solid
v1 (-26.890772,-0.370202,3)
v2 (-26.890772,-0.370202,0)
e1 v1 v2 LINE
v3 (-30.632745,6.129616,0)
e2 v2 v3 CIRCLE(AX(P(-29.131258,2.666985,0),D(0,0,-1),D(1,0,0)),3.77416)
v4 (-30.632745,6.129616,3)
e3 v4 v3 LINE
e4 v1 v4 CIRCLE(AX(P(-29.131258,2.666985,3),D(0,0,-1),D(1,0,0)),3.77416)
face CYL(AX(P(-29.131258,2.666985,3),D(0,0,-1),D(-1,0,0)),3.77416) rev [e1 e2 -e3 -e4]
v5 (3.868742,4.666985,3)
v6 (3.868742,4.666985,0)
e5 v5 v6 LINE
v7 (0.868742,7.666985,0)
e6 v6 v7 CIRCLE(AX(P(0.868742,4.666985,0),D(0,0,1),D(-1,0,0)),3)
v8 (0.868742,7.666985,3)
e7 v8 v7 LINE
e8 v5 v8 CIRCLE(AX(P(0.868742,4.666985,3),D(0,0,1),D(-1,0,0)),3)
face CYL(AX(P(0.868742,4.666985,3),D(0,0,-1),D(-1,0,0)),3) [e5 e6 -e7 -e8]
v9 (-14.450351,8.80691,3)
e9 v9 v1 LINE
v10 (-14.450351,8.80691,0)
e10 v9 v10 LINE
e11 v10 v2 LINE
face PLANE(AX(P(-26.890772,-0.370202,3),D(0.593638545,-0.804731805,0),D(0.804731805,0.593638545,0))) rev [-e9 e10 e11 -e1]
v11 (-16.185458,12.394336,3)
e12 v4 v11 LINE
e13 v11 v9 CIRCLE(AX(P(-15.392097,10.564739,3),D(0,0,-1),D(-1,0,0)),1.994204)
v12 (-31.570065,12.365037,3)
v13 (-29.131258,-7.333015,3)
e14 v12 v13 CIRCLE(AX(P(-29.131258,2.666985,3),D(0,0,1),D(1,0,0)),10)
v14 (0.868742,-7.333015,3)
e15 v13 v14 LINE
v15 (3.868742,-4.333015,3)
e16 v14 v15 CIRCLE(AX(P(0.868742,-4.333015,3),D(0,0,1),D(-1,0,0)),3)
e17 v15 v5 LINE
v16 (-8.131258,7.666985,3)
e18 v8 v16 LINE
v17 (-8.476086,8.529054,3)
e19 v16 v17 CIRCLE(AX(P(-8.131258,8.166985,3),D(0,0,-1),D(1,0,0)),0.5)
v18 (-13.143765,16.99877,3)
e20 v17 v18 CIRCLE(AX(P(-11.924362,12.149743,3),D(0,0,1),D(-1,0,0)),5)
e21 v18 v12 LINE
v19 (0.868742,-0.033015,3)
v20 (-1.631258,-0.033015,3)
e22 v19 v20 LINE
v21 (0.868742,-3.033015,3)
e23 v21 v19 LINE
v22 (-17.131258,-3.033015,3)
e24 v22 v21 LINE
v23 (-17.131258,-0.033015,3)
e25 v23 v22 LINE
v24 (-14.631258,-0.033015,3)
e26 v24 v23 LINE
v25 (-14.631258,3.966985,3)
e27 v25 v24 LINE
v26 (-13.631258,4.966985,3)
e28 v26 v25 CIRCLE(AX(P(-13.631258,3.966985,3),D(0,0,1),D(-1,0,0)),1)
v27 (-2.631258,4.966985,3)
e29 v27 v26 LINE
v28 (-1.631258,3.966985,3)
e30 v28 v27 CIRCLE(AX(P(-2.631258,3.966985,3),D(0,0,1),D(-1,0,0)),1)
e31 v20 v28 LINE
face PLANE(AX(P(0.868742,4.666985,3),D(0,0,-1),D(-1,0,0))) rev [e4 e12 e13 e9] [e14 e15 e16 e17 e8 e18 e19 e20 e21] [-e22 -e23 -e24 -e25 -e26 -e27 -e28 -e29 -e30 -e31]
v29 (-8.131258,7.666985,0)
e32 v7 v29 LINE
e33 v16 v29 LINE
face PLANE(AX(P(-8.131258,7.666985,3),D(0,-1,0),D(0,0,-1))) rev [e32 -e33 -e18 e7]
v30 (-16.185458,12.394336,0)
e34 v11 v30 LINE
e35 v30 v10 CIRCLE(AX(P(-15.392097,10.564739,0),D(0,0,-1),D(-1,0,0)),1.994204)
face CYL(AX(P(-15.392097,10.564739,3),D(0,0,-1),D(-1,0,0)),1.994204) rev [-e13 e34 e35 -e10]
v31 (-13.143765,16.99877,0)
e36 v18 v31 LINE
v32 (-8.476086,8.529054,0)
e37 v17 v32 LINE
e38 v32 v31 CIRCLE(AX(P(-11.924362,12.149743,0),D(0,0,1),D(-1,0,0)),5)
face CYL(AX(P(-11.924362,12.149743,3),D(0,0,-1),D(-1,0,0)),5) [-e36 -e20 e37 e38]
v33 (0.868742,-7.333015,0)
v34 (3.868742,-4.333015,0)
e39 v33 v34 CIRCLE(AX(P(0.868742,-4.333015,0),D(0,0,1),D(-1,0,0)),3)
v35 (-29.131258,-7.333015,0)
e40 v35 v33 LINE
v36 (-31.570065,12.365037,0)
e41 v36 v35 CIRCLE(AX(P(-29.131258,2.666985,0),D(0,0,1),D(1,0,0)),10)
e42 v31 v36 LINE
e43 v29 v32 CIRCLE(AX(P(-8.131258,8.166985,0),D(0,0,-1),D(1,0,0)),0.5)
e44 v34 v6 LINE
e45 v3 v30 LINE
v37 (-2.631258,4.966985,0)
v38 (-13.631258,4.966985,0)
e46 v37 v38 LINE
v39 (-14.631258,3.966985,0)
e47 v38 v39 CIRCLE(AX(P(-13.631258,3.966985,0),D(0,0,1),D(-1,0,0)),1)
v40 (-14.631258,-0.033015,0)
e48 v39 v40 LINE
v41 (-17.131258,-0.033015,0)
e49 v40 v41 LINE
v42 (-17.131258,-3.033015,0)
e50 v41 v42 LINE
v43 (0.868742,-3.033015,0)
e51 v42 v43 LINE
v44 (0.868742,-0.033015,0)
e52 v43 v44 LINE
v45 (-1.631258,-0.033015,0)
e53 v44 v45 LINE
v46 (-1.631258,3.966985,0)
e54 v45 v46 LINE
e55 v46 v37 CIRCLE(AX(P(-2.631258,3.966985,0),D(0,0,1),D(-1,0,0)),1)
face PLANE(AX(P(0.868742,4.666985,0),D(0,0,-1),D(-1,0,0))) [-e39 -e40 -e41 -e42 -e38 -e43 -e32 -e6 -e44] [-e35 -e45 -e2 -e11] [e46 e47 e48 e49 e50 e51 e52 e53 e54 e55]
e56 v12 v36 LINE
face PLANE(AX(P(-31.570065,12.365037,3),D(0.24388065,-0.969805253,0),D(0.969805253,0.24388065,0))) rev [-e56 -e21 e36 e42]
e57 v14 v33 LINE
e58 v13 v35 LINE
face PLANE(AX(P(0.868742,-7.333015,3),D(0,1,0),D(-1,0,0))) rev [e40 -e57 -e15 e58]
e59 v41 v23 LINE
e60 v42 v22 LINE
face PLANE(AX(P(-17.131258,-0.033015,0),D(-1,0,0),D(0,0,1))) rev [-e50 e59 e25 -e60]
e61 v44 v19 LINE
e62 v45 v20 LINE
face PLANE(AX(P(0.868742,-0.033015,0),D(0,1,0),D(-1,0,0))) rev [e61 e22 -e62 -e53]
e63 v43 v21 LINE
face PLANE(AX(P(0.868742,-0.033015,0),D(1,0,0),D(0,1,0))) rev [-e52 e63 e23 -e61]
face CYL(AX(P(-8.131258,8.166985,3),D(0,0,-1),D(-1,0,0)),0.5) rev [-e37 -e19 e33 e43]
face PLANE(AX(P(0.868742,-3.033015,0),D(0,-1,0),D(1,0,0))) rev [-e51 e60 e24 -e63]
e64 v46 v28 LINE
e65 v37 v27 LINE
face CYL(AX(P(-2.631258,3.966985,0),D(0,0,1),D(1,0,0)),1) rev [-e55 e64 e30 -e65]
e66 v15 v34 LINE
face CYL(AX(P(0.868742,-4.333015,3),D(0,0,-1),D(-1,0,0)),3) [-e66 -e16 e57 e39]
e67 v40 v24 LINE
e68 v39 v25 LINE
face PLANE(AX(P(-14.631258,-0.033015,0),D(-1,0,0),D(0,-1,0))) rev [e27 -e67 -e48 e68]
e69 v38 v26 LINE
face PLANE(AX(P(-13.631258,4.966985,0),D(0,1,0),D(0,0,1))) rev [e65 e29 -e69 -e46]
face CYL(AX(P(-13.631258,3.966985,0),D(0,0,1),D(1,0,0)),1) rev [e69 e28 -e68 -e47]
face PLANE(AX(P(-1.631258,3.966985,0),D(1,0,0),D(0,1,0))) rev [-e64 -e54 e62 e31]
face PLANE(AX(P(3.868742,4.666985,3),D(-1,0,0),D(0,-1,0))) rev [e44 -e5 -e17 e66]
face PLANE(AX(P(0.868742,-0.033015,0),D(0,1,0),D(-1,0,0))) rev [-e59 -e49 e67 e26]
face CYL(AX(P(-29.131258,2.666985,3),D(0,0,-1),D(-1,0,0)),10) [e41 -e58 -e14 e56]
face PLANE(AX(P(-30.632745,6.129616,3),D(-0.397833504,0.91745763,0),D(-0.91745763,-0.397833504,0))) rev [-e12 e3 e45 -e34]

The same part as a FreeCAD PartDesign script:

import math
import FreeCAD as App
import Part
import Sketcher

V = App.Vector
Q = App.Units.Quantity

doc = App.newDocument("Part")
body = doc.addObject("PartDesign::Body", "Body")

# Sketch on XY plane
sketch1 = body.newObject("Sketcher::SketchObject", "Sketch")
sketch1.AttachmentSupport = (doc.getObject("XY_Plane"), [""])
sketch1.MapMode = "FlatFace"
sketch1.addGeometry([
    Part.LineSegment(V(3.9, -4.3, 0), V(3.9, 4.7, 0)),  # 0
    Part.ArcOfCircle(Part.Circle(V(0.9, 4.7, 0), V(0, 0, 1), 3), math.radians(0), math.radians(90)),  # 1
    Part.LineSegment(V(0.9, 7.7, 0), V(-8.1, 7.7, 0)),  # 2
    Part.ArcOfCircle(Part.Circle(V(-8.1, 8.2, 0), V(0, 0, 1), 0.5), math.radians(134), math.radians(270)),  # 3
    Part.ArcOfCircle(Part.Circle(V(-11.9, 12.1, 0), V(0, 0, 1), 5), math.radians(-46), math.radians(104)),  # 4
    Part.LineSegment(V(-13.1, 17, 0), V(-31.6, 12.4, 0)),  # 5
    Part.ArcOfCircle(Part.Circle(V(-29.1, 2.7, 0), V(0, 0, 1), 10), math.radians(104), math.radians(270)),  # 6
    Part.LineSegment(V(-29.1, -7.3, 0), V(0.9, -7.3, 0)),  # 7
    Part.ArcOfCircle(Part.Circle(V(0.9, -4.3, 0), V(0, 0, 1), 3), math.radians(-90), math.radians(0)),  # 8
], False)
sketch1.addConstraint([
    Sketcher.Constraint("Tangent", 0, 2, 1, 1),
    Sketcher.Constraint("Tangent", 1, 2, 2, 1),
    Sketcher.Constraint("Tangent", 2, 2, 3, 2),
    Sketcher.Constraint("Tangent", 3, 1, 4, 1),
    Sketcher.Constraint("Tangent", 4, 2, 5, 1),
    Sketcher.Constraint("Tangent", 5, 2, 6, 1),
    Sketcher.Constraint("Tangent", 6, 2, 7, 1),
    Sketcher.Constraint("Tangent", 7, 2, 8, 1),
    Sketcher.Constraint("Tangent", 8, 2, 0, 1),
    Sketcher.Constraint("Vertical", 0),
    Sketcher.Constraint("Horizontal", 2),
    Sketcher.Constraint("Horizontal", 7),
    Sketcher.Constraint("Equal", 1, 8),
    Sketcher.Constraint("Equal", 2, 0),
    Sketcher.Constraint("Radius", 1, Q("3 mm")),
    Sketcher.Constraint("Radius", 4, Q("5 mm")),
    Sketcher.Constraint("Radius", 6, Q("10 mm")),
    Sketcher.Constraint("Radius", 3, Q("0.5 mm")),
    Sketcher.Constraint("DistanceX", 2, 2, 2, 1, Q("9 mm")),
    Sketcher.Constraint("DistanceX", 7, 1, 7, 2, Q("30 mm")),
    Sketcher.Constraint("Distance", 5, Q("19 mm")),
    Sketcher.Constraint("DistanceX", -1, 1, 1, 3, Q("0.868742 mm")),
    Sketcher.Constraint("DistanceY", -1, 1, 4, 2, Q("16.99877 mm")),
])
pad1 = body.newObject("PartDesign::Pad", "Pad")
pad1.Profile = sketch1
pad1.Length = 3

# Sketch on XY plane
sketch2 = body.newObject("Sketcher::SketchObject", "Sketch001")
sketch2.AttachmentSupport = (doc.getObject("XY_Plane"), [""])
sketch2.MapMode = "FlatFace"
sketch2.AttachmentOffset = App.Placement(V(0, 0, 3), App.Rotation())
sketch2.addGeometry(Part.Circle(V(-29.1, 2.7, 0), V(0, 0, 1), 1.5), False)
sketch2.addConstraint([
    Sketcher.Constraint("Diameter", 0, Q("3 mm")),
    Sketcher.Constraint("DistanceX", 0, 3, -1, 1, Q("29.131258 mm")),
    Sketcher.Constraint("DistanceY", -1, 1, 0, 3, Q("2.666985 mm")),
])
pocket1 = body.newObject("PartDesign::Pocket", "Pocket")
pocket1.Profile = sketch2
pocket1.Length = 3

# Sketch on XY plane
sketch3 = body.newObject("Sketcher::SketchObject", "Sketch002")
sketch3.AttachmentSupport = (doc.getObject("XY_Plane"), [""])
sketch3.MapMode = "FlatFace"
sketch3.addGeometry([
    Part.LineSegment(V(-30.6, 6.1, 0), V(-16.2, 12.4, 0)),
    Part.ArcOfCircle(Part.Circle(V(-15.4, 10.6, 0), V(0, 0, 1), 2), math.radians(-62), math.radians(113)),
    Part.LineSegment(V(-14.5, 8.8, 0), V(-26.9, -0.4, 0)),
    Part.ArcOfCircle(Part.Circle(V(-29.1, 2.7, 0), V(0, 0, 1), 3.8), math.radians(113), math.radians(306)),
], False)
sketch3.addConstraint([
    Sketcher.Constraint("Tangent", 0, 2, 1, 2),
    Sketcher.Constraint("Coincident", 1, 1, 2, 1),
    Sketcher.Constraint("Tangent", 2, 2, 3, 2),
    Sketcher.Constraint("Tangent", 3, 1, 0, 1),
    Sketcher.Constraint("Radius", 3, Q("3.77416 mm")),
    Sketcher.Constraint("Radius", 1, Q("1.994204 mm")),
    Sketcher.Constraint("DistanceY", 2, 2, -1, 1, Q("0.370202 mm")),
    Sketcher.Constraint("DistanceX", 3, 3, 0, 2, Q("12.9458 mm")),
    Sketcher.Constraint("Distance", 0, Q("15.747089 mm")),
    Sketcher.Constraint("Distance", 2, Q("15.459089 mm")),
    Sketcher.Constraint("DistanceX", 3, 3, -1, 1, Q("29.131258 mm")),
])
pocket2 = body.newObject("PartDesign::Pocket", "Pocket001")
pocket2.Profile = sketch3
pocket2.Length = 3
pocket2.Reversed = True

# Sketch on XY plane
sketch4 = body.newObject("Sketcher::SketchObject", "Sketch003")
sketch4.AttachmentSupport = (doc.getObject("XY_Plane"), [""])
sketch4.MapMode = "FlatFace"
sketch4.AttachmentOffset = App.Placement(V(0, 0, 3), App.Rotation())
sketch4.addGeometry([
    Part.LineSegment(V(-17.1, 0, 0), V(-17.1, -3, 0)),
    Part.LineSegment(V(-17.1, -3, 0), V(0.9, -3, 0)),
    Part.LineSegment(V(0.9, -3, 0), V(0.9, 0, 0)),
    Part.LineSegment(V(0.9, 0, 0), V(-17.1, 0, 0)),
], False)
sketch4.addConstraint([
    Sketcher.Constraint("Coincident", 0, 2, 1, 1),
    Sketcher.Constraint("Coincident", 1, 2, 2, 1),
    Sketcher.Constraint("Coincident", 2, 2, 3, 1),
    Sketcher.Constraint("Coincident", 3, 2, 0, 1),
    Sketcher.Constraint("Vertical", 0),
    Sketcher.Constraint("Horizontal", 1),
    Sketcher.Constraint("Vertical", 2),
    Sketcher.Constraint("Horizontal", 3),
    Sketcher.Constraint("DistanceX", 1, 1, 1, 2, Q("18 mm")),
    Sketcher.Constraint("DistanceY", 0, 2, 0, 1, Q("3 mm")),
    Sketcher.Constraint("DistanceX", 0, 2, -1, 1, Q("17.131258 mm")),
    Sketcher.Constraint("DistanceY", 0, 2, -1, 1, Q("3.033015 mm")),
])
pocket3 = body.newObject("PartDesign::Pocket", "Pocket002")
pocket3.Profile = sketch4
pocket3.Length = 3

# Sketch on XY plane
sketch5 = body.newObject("Sketcher::SketchObject", "Sketch004")
sketch5.AttachmentSupport = (doc.getObject("XY_Plane"), [""])
sketch5.MapMode = "FlatFace"
sketch5.AttachmentOffset = App.Placement(V(0, 0, 3), App.Rotation())
sketch5.addGeometry([
    Part.LineSegment(V(-14.6, 4, 0), V(-14.6, 0, 0)),  # 0
    Part.LineSegment(V(-14.6, 0, 0), V(-1.6, 0, 0)),  # 1
    Part.LineSegment(V(-1.6, 0, 0), V(-1.6, 4, 0)),  # 2
    Part.ArcOfCircle(Part.Circle(V(-2.6, 4, 0), V(0, 0, 1), 1), math.radians(0), math.radians(90)),  # 3
    Part.LineSegment(V(-2.6, 5, 0), V(-13.6, 5, 0)),  # 4
    Part.ArcOfCircle(Part.Circle(V(-13.6, 4, 0), V(0, 0, 1), 1), math.radians(90), math.radians(180)),  # 5
], False)
sketch5.addConstraint([
    Sketcher.Constraint("Coincident", 0, 2, 1, 1),
    Sketcher.Constraint("Coincident", 1, 2, 2, 1),
    Sketcher.Constraint("Tangent", 2, 2, 3, 1),
    Sketcher.Constraint("Tangent", 3, 2, 4, 1),
    Sketcher.Constraint("Tangent", 4, 2, 5, 1),
    Sketcher.Constraint("Tangent", 5, 2, 0, 1),
    Sketcher.Constraint("Vertical", 0),
    Sketcher.Constraint("Horizontal", 1),
    Sketcher.Constraint("Vertical", 2),
    Sketcher.Constraint("Horizontal", 4),
    Sketcher.Constraint("Equal", 3, 5),
    Sketcher.Constraint("Radius", 3, Q("1 mm")),
    Sketcher.Constraint("DistanceX", 1, 1, 1, 2, Q("13 mm")),
    Sketcher.Constraint("DistanceY", 0, 2, 0, 1, Q("4 mm")),
    Sketcher.Constraint("DistanceX", 3, 3, -1, 1, Q("2.631258 mm")),
    Sketcher.Constraint("DistanceY", -1, 1, 3, 3, Q("3.966985 mm")),
])
pocket4 = body.newObject("PartDesign::Pocket", "Pocket003")
pocket4.Profile = sketch5
pocket4.Length = 3

doc.recompute()
